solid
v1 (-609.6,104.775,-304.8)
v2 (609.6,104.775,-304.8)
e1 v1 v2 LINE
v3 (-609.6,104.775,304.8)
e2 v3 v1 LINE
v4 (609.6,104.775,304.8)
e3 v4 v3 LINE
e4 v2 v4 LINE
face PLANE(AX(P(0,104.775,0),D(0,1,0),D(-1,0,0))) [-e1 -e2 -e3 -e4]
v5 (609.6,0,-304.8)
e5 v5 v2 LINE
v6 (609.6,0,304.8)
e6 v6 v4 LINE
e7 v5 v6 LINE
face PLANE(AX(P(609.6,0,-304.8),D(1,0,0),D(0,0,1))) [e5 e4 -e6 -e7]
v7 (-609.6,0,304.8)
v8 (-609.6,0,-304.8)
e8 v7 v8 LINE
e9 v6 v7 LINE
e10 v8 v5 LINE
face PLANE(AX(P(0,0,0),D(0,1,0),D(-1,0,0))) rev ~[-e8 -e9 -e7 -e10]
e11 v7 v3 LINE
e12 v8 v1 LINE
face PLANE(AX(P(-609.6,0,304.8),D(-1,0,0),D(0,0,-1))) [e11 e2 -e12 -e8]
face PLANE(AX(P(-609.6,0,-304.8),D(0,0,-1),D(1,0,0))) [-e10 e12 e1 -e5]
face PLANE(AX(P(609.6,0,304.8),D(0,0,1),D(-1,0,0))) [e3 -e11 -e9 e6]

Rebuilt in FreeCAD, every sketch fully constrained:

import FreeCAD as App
import Part
import Sketcher

V = App.Vector
Q = App.Units.Quantity

doc = App.newDocument("Part")
body = doc.addObject("PartDesign::Body", "Body")

# Sketch on XZ plane
sketch1 = body.newObject("Sketcher::SketchObject", "Sketch")
sketch1.AttachmentSupport = (doc.getObject("XZ_Plane"), [""])
sketch1.MapMode = "FlatFace"
sketch1.addGeometry(Part.LineSegment(V(610, -305, 0), V(-610, -305, 0)), False)
sketch1.addGeometry(Part.LineSegment(V(-610, -305, 0), V(-610, 305, 0)), False)
sketch1.addGeometry(Part.LineSegment(V(-610, 305, 0), V(610, 305, 0)), False)
sketch1.addGeometry(Part.LineSegment(V(610, 305, 0), V(610, -305, 0)), False)
sketch1.addConstraint(Sketcher.Constraint("Coincident", 0, 2, 1, 1))
sketch1.addConstraint(Sketcher.Constraint("Coincident", 1, 2, 2, 1))
sketch1.addConstraint(Sketcher.Constraint("Coincident", 2, 2, 3, 1))
sketch1.addConstraint(Sketcher.Constraint("Coincident", 3, 2, 0, 1))
sketch1.addConstraint(Sketcher.Constraint("Horizontal", 0))
sketch1.addConstraint(Sketcher.Constraint("Vertical", 1))
sketch1.addConstraint(Sketcher.Constraint("Horizontal", 2))
sketch1.addConstraint(Sketcher.Constraint("Vertical", 3))
sketch1.addConstraint(Sketcher.Constraint("Symmetric", 0, 2, 2, 2, -1, 1))
sketch1.addConstraint(Sketcher.Constraint("DistanceX", 0, 2, 0, 1, Q("48 in")))
sketch1.addConstraint(Sketcher.Constraint("DistanceY", 1, 1, 1, 2, Q("24 in")))
pad1 = body.newObject("PartDesign::Pad", "Pad")
pad1.Profile = sketch1
pad1.Length = Q("4.125 in")
pad1.Reversed = True

doc.recompute()
